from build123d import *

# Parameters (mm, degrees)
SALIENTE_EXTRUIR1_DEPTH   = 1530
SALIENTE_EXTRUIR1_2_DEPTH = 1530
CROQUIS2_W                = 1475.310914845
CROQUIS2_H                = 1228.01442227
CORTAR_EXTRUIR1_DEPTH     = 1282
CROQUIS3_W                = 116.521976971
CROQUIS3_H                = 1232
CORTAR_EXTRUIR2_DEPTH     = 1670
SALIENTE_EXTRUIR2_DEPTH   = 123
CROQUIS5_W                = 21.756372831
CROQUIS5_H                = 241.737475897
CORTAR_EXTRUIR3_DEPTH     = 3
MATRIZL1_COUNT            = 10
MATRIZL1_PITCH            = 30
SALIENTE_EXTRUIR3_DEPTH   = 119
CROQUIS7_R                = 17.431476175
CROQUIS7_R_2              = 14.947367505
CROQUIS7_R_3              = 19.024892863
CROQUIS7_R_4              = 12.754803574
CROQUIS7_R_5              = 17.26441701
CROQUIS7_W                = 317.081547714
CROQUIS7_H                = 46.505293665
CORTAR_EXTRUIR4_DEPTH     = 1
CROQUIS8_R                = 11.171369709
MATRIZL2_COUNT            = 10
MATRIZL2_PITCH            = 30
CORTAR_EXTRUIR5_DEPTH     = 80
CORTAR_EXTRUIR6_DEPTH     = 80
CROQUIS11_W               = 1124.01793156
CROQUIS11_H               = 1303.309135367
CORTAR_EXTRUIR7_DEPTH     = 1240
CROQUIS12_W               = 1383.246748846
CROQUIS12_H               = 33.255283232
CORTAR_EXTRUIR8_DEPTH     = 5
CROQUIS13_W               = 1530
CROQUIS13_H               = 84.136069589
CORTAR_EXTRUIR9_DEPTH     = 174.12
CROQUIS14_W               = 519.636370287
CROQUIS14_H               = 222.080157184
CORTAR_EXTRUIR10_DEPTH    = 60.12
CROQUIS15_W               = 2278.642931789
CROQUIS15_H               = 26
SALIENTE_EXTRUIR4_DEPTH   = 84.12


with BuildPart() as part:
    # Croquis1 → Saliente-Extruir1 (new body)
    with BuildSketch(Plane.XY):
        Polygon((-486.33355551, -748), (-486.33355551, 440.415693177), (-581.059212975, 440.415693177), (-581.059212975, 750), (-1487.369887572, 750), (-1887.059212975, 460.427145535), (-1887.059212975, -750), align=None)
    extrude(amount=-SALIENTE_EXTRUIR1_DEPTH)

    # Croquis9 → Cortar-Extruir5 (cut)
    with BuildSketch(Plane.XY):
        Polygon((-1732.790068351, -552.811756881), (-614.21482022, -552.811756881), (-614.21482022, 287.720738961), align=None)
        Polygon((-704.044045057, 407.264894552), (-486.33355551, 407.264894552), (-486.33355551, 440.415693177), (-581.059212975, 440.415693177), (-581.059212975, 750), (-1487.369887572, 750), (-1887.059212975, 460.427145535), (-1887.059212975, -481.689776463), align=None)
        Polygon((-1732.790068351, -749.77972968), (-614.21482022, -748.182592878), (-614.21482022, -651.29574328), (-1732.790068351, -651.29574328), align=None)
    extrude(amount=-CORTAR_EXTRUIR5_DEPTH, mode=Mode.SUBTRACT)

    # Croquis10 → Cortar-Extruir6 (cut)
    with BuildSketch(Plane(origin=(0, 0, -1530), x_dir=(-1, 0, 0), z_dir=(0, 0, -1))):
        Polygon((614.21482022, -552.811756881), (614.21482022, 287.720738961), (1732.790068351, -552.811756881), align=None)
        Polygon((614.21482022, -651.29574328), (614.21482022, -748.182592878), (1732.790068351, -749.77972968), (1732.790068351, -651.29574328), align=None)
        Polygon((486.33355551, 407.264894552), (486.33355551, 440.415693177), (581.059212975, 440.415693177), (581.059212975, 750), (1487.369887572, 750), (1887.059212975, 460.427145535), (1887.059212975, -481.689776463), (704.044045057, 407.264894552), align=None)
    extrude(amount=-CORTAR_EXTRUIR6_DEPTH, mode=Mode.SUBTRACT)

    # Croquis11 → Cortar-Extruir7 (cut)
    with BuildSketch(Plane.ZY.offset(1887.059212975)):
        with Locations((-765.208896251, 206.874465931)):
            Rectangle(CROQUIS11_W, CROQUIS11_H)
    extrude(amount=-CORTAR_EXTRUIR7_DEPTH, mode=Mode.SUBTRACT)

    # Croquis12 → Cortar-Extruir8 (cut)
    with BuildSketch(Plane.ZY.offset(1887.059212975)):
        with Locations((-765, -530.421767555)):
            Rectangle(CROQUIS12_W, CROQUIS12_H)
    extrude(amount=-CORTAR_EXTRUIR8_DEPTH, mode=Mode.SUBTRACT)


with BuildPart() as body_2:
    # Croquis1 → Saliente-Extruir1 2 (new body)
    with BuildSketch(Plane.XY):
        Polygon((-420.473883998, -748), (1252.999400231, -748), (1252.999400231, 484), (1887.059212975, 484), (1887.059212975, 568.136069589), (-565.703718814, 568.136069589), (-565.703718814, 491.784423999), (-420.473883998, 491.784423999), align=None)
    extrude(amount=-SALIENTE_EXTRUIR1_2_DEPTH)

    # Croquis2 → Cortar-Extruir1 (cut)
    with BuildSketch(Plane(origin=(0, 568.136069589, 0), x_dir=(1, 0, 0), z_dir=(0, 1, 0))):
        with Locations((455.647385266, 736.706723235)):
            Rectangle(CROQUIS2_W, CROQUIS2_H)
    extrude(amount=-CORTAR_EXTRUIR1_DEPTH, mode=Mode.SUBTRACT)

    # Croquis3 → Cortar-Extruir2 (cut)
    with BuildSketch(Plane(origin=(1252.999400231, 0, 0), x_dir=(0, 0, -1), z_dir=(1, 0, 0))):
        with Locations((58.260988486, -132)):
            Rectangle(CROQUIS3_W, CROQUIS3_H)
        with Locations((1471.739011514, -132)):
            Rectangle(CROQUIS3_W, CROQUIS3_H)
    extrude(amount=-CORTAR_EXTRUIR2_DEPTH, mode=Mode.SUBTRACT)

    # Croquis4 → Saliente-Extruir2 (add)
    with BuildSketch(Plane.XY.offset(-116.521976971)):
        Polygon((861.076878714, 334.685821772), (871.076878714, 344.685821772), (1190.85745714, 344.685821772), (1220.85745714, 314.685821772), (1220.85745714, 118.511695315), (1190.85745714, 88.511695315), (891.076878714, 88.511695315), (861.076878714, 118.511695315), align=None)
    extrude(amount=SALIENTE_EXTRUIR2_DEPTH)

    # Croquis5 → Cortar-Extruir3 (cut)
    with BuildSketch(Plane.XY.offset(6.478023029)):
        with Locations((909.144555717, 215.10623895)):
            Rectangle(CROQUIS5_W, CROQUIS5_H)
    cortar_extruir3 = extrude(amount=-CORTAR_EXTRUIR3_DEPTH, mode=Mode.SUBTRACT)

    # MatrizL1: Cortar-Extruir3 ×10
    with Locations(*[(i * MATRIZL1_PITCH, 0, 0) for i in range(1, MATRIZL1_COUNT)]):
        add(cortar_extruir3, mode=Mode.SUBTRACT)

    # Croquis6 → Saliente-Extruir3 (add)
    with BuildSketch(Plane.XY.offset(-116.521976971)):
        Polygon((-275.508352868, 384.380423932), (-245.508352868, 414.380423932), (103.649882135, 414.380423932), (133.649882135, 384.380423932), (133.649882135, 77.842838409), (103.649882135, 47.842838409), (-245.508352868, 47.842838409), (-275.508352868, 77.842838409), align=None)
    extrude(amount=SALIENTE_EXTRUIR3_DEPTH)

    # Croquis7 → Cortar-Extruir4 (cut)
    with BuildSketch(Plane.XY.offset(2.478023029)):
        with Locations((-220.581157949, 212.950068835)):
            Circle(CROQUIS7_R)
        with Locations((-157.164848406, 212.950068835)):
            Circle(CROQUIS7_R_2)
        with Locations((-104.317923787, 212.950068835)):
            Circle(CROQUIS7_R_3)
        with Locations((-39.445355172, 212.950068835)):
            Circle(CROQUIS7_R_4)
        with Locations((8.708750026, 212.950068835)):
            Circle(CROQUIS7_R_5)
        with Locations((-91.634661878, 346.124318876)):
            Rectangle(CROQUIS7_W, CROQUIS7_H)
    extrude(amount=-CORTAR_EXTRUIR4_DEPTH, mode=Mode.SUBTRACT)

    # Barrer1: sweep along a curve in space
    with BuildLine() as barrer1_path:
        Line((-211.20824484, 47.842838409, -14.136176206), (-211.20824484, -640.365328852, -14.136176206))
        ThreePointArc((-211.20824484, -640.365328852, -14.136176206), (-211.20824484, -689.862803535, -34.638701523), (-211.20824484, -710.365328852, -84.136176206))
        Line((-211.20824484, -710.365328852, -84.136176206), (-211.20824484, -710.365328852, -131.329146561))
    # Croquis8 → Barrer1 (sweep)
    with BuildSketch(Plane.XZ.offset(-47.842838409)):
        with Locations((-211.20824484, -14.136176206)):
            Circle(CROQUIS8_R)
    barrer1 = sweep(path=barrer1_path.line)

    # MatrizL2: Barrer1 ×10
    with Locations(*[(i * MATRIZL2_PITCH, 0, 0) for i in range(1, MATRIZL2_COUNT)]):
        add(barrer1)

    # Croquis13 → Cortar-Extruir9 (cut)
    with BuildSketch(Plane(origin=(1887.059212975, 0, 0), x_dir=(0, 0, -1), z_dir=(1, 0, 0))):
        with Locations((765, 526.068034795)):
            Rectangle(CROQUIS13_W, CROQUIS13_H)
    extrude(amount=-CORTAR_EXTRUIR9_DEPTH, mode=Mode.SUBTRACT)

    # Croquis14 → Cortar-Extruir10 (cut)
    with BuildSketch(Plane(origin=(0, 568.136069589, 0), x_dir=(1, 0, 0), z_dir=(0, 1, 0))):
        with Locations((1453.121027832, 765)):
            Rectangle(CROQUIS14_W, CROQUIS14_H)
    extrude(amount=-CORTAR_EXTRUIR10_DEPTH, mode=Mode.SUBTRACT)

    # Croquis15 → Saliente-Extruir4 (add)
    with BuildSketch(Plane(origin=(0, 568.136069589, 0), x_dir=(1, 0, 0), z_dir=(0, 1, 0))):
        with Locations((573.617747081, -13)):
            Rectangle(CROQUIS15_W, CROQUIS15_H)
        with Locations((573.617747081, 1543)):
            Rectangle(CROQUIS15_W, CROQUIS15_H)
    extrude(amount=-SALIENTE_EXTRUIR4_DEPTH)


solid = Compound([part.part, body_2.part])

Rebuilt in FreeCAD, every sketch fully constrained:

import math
import FreeCAD as App
import Part
import Sketcher

V = App.Vector

doc = App.newDocument("Part")
body = doc.addObject("PartDesign::Body", "Body")

# Sketch on XY plane
sketch1 = doc.addObject("Sketcher::SketchObject", "Sketch")
body.addObject(sketch1)
sketch1.AttachmentSupport = (doc.XY_Plane, [""])
sketch1.MapMode = "FlatFace"
sketch1.addGeometry([
    Part.LineSegment(V(-486.333556, -748, 0), V(-486.333556, 440.415693, 0)),  # 0
    Part.LineSegment(V(-486.333556, 440.415693, 0), V(-581.059213, 440.415693, 0)),  # 1
    Part.LineSegment(V(-581.059213, 440.415693, 0), V(-581.059213, 750, 0)),  # 2
    Part.LineSegment(V(-581.059213, 750, 0), V(-1487.369888, 750, 0)),  # 3
    Part.LineSegment(V(-1487.369888, 750, 0), V(-1887.059213, 460.427146, 0)),  # 4
    Part.LineSegment(V(-1887.059213, 460.427146, 0), V(-1887.059213, -750, 0)),  # 5
    Part.LineSegment(V(-1887.059213, -750, 0), V(-486.333556, -748, 0)),  # 6
], False)
sketch1.addConstraint([
    Sketcher.Constraint("Coincident", 0, 2, 1, 1),
    Sketcher.Constraint("Coincident", 1, 2, 2, 1),
    Sketcher.Constraint("Coincident", 2, 2, 3, 1),
    Sketcher.Constraint("Coincident", 3, 2, 4, 1),
    Sketcher.Constraint("Coincident", 4, 2, 5, 1),
    Sketcher.Constraint("Coincident", 5, 2, 6, 1),
    Sketcher.Constraint("Coincident", 6, 2, 0, 1),
    Sketcher.Constraint("Vertical", 0),
    Sketcher.Constraint("Horizontal", 1),
    Sketcher.Constraint("Vertical", 2),
    Sketcher.Constraint("Horizontal", 3),
    Sketcher.Constraint("Vertical", 5),
    Sketcher.Constraint("DistanceY", -1, 1, 2, 2, 750.0),
    Sketcher.Constraint("DistanceY", 5, 2, -1, 1, 750.0),
    Sketcher.Constraint("DistanceY", 6, 2, -1, 1, 748.0),
    Sketcher.Constraint("DistanceX", 4, 2, 1, 2, 1306.0),
    Sketcher.Constraint("DistanceX", 1, 2, 1, 1, 94.725657),
    Sketcher.Constraint("DistanceX", 3, 2, 3, 1, 906.310675),
    Sketcher.Constraint("DistanceY", 0, 1, 0, 2, 1188.415693),
    Sketcher.Constraint("DistanceY", 5, 2, 5, 1, 1210.427146),
    Sketcher.Constraint("DistanceX", 0, 2, -1, 1, 486.333556),
])
pad1 = doc.addObject("PartDesign::Pad", "Pad")
body.addObject(pad1)
pad1.Profile = sketch1
pad1.Length = 1530
pad1.Reversed = True

# Sketch on XY plane
sketch2 = doc.addObject("Sketcher::SketchObject", "Sketch001")
body.addObject(sketch2)
sketch2.AttachmentSupport = (doc.XY_Plane, [""])
sketch2.MapMode = "FlatFace"
sketch2.addGeometry([
    Part.LineSegment(V(-1732.790068, -552.811757, 0), V(-614.21482, -552.811757, 0)),  # 0
    Part.LineSegment(V(-614.21482, -552.811757, 0), V(-614.21482, 287.720739, 0)),  # 1
    Part.LineSegment(V(-614.21482, 287.720739, 0), V(-1732.790068, -552.811757, 0)),  # 2
    Part.LineSegment(V(-704.044045, 407.264895, 0), V(-486.333556, 407.264895, 0)),  # 3
    Part.LineSegment(V(-486.333556, 407.264895, 0), V(-486.333556, 440.415693, 0)),  # 4
    Part.LineSegment(V(-486.333556, 440.415693, 0), V(-581.059213, 440.415693, 0)),  # 5
    Part.LineSegment(V(-581.059213, 440.415693, 0), V(-581.059213, 750, 0)),  # 6
    Part.LineSegment(V(-581.059213, 750, 0), V(-1487.369888, 750, 0)),  # 7
    Part.LineSegment(V(-1487.369888, 750, 0), V(-1887.059213, 460.427146, 0)),  # 8
    Part.LineSegment(V(-1887.059213, 460.427146, 0), V(-1887.059213, -481.689776, 0)),  # 9
    Part.LineSegment(V(-1887.059213, -481.689776, 0), V(-704.044045, 407.264895, 0)),  # 10
    Part.LineSegment(V(-1732.790068, -749.77973, 0), V(-614.21482, -748.182593, 0)),  # 11
    Part.LineSegment(V(-614.21482, -748.182593, 0), V(-614.21482, -651.295743, 0)),  # 12
    Part.LineSegment(V(-614.21482, -651.295743, 0), V(-1732.790068, -651.295743, 0)),  # 13
    Part.LineSegment(V(-1732.790068, -651.295743, 0), V(-1732.790068, -749.77973, 0)),  # 14
], False)
sketch2.addConstraint([
    Sketcher.Constraint("Coincident", 0, 2, 1, 1),
    Sketcher.Constraint("Coincident", 1, 2, 2, 1),
    Sketcher.Constraint("Coincident", 2, 2, 0, 1),
    Sketcher.Constraint("Coincident", 3, 2, 4, 1),
    Sketcher.Constraint("Coincident", 4, 2, 5, 1),
    Sketcher.Constraint("Coincident", 5, 2, 6, 1),
    Sketcher.Constraint("Coincident", 6, 2, 7, 1),
    Sketcher.Constraint("Coincident", 7, 2, 8, 1),
    Sketcher.Constraint("Coincident", 8, 2, 9, 1),
    Sketcher.Constraint("Coincident", 9, 2, 10, 1),
    Sketcher.Constraint("Coincident", 10, 2, 3, 1),
    Sketcher.Constraint("Coincident", 11, 2, 12, 1),
    Sketcher.Constraint("Coincident", 12, 2, 13, 1),
    Sketcher.Constraint("Coincident", 13, 2, 14, 1),
    Sketcher.Constraint("Coincident", 14, 2, 11, 1),
    Sketcher.Constraint("Horizontal", 0),
    Sketcher.Constraint("Vertical", 1),
    Sketcher.Constraint("Horizontal", 3),
    Sketcher.Constraint("Vertical", 4),
    Sketcher.Constraint("Horizontal", 5),
    Sketcher.Constraint("Vertical", 6),
    Sketcher.Constraint("Horizontal", 7),
    Sketcher.Constraint("Vertical", 9),
    Sketcher.Constraint("Vertical", 12),
    Sketcher.Constraint("Horizontal", 13),
    Sketcher.Constraint("Vertical", 14),
    Sketcher.Constraint("Parallel", 2, 10),
    Sketcher.Constraint("Vertical", 1, 2, 11, 2),
    Sketcher.Constraint("Vertical", 2, 2, 13, 2),
    Sketcher.Constraint("DistanceY", -1, 1, 6, 2, 750.0),
    Sketcher.Constraint("DistanceX", 8, 2, 5, 2, 1306.0),
    Sketcher.Constraint("DistanceY", 4, 1, 4, 2, 33.150799),
    Sketcher.Constraint("DistanceX", 0, 1, 0, 2, 1118.575248),
    Sketcher.Constraint("DistanceX", 3, 1, 3, 2, 217.71049),
    Sketcher.Constraint("DistanceY", 9, 2, 9, 1, 942.116922),
    Sketcher.Constraint("DistanceY", 12, 1, 12, 2, 96.88685),
    Sketcher.Constraint("DistanceX", 5, 2, 5, 1, 94.725657),
    Sketcher.Constraint("DistanceX", 7, 2, 7, 1, 906.310675),
    Sketcher.Constraint("DistanceY", 1, 1, 1, 2, 840.532496),
    Sketcher.Constraint("DistanceY", 6, 1, 6, 2, 309.584307),
    Sketcher.Constraint("DistanceY", 14, 2, 14, 1, 98.483986),
    Sketcher.Constraint("DistanceX", 0, 2, -1, 1, 614.21482),
    Sketcher.Constraint("DistanceY", -1, 1, 1, 2, 287.720739),
    Sketcher.Constraint("DistanceY", 14, 2, -1, 1, 749.77973),
    Sketcher.Constraint("DistanceX", 3, 2, -1, 1, 486.333556),
])
pocket1 = doc.addObject("PartDesign::Pocket", "Pocket")
body.addObject(pocket1)
pocket1.Profile = sketch2
pocket1.Length = 80

# Sketch on XY plane
sketch3 = doc.addObject("Sketcher::SketchObject", "Sketch002")
body.addObject(sketch3)
sketch3.AttachmentSupport = (doc.XY_Plane, [""])
sketch3.MapMode = "FlatFace"
sketch3.AttachmentOffset = App.Placement(V(0, 0, -1530), App.Rotation())
sketch3.addGeometry([
    Part.LineSegment(V(-614.21482, 287.720739, 0), V(-614.21482, -552.811757, 0)),  # 0
    Part.LineSegment(V(-614.21482, -552.811757, 0), V(-1732.790068, -552.811757, 0)),  # 1
    Part.LineSegment(V(-1732.790068, -552.811757, 0), V(-614.21482, 287.720739, 0)),  # 2
    Part.LineSegment(V(-614.21482, -651.295743, 0), V(-614.21482, -748.182593, 0)),  # 3
    Part.LineSegment(V(-614.21482, -748.182593, 0), V(-1732.790068, -749.77973, 0)),  # 4
    Part.LineSegment(V(-1732.790068, -749.77973, 0), V(-1732.790068, -651.295743, 0)),  # 5
    Part.LineSegment(V(-1732.790068, -651.295743, 0), V(-614.21482, -651.295743, 0)),  # 6
    Part.LineSegment(V(-486.333556, 440.415693, 0), V(-486.333556, 407.264895, 0)),  # 7
    Part.LineSegment(V(-486.333556, 407.264895, 0), V(-704.044045, 407.264895, 0)),  # 8
    Part.LineSegment(V(-704.044045, 407.264895, 0), V(-1887.059213, -481.689776, 0)),  # 9
    Part.LineSegment(V(-1887.059213, -481.689776, 0), V(-1887.059213, 460.427146, 0)),  # 10
    Part.LineSegment(V(-1887.059213, 460.427146, 0), V(-1487.369888, 750, 0)),  # 11
    Part.LineSegment(V(-1487.369888, 750, 0), V(-581.059213, 750, 0)),  # 12
    Part.LineSegment(V(-581.059213, 750, 0), V(-581.059213, 440.415693, 0)),  # 13
    Part.LineSegment(V(-581.059213, 440.415693, 0), V(-486.333556, 440.415693, 0)),  # 14
], False)
sketch3.addConstraint([
    Sketcher.Constraint("Coincident", 0, 2, 1, 1),
    Sketcher.Constraint("Coincident", 1, 2, 2, 1),
    Sketcher.Constraint("Coincident", 2, 2, 0, 1),
    Sketcher.Constraint("Coincident", 3, 2, 4, 1),
    Sketcher.Constraint("Coincident", 4, 2, 5, 1),
    Sketcher.Constraint("Coincident", 5, 2, 6, 1),
    Sketcher.Constraint("Coincident", 6, 2, 3, 1),
    Sketcher.Constraint("Coincident", 7, 2, 8, 1),
    Sketcher.Constraint("Coincident", 8, 2, 9, 1),
    Sketcher.Constraint("Coincident", 9, 2, 10, 1),
    Sketcher.Constraint("Coincident", 10, 2, 11, 1),
    Sketcher.Constraint("Coincident", 11, 2, 12, 1),
    Sketcher.Constraint("Coincident", 12, 2, 13, 1),
    Sketcher.Constraint("Coincident", 13, 2, 14, 1),
    Sketcher.Constraint("Coincident", 14, 2, 7, 1),
    Sketcher.Constraint("Vertical", 0),
    Sketcher.Constraint("Horizontal", 1),
    Sketcher.Constraint("Vertical", 3),
    Sketcher.Constraint("Vertical", 5),
    Sketcher.Constraint("Horizontal", 6),
    Sketcher.Constraint("Vertical", 7),
    Sketcher.Constraint("Horizontal", 8),
    Sketcher.Constraint("Vertical", 10),
    Sketcher.Constraint("Horizontal", 12),
    Sketcher.Constraint("Vertical", 13),
    Sketcher.Constraint("Horizontal", 14),
    Sketcher.Constraint("Parallel", 2, 9),
    Sketcher.Constraint("Vertical", 2, 2, 3, 2),
    Sketcher.Constraint("Vertical", 1, 2, 4, 2),
    Sketcher.Constraint("DistanceY", -1, 1, 11, 2, 750.0),
    Sketcher.Constraint("DistanceY", 7, 2, 7, 1, 33.150799),
    Sketcher.Constraint("DistanceX", 1, 2, 1, 1, 1118.575248),
    Sketcher.Constraint("DistanceX", 8, 2, 8, 1, 217.71049),
    Sketcher.Constraint("DistanceY", 3, 2, 3, 1, 96.88685),
    Sketcher.Constraint("DistanceY", 10, 1, 10, 2, 942.116922),
    Sketcher.Constraint("DistanceX", 12, 1, 12, 2, 906.310675),
    Sketcher.Constraint("DistanceX", 14, 1, 14, 2, 94.725657),
    Sketcher.Constraint("DistanceY", 0, 2, 0, 1, 840.532496),
    Sketcher.Constraint("DistanceY", 5, 1, 5, 2, 98.483986),
    Sketcher.Constraint("DistanceY", 13, 2, 13, 1, 309.584307),
    Sketcher.Constraint("DistanceX", 0, 2, -1, 1, 614.21482),
    Sketcher.Constraint("DistanceY", -1, 1, 2, 2, 287.720739),
    Sketcher.Constraint("DistanceY", 4, 2, -1, 1, 749.77973),
    Sketcher.Constraint("DistanceY", 1, 2, 9, 2, 71.12198),
    Sketcher.Constraint("DistanceX", 7, 2, -1, 1, 486.333556),
])
pocket2 = doc.addObject("PartDesign::Pocket", "Pocket001")
body.addObject(pocket2)
pocket2.Profile = sketch3
pocket2.Length = 80
pocket2.Reversed = True

# Sketch on YZ plane
sketch4 = doc.addObject("Sketcher::SketchObject", "Sketch003")
body.addObject(sketch4)
sketch4.AttachmentSupport = (doc.YZ_Plane, [""])
sketch4.MapMode = "FlatFace"
sketch4.AttachmentOffset = App.Placement(V(0, 0, -1887.059213), App.Rotation())
sketch4.addGeometry([
    Part.LineSegment(V(858.529034, -1327.217862, 0), V(-444.780102, -1327.217862, 0)),
    Part.LineSegment(V(-444.780102, -1327.217862, 0), V(-444.780102, -203.19993, 0)),
    Part.LineSegment(V(-444.780102, -203.19993, 0), V(858.529034, -203.19993, 0)),
    Part.LineSegment(V(858.529034, -203.19993, 0), V(858.529034, -1327.217862, 0)),
], False)
sketch4.addConstraint([
    Sketcher.Constraint("Coincident", 0, 2, 1, 1),
    Sketcher.Constraint("Coincident", 1, 2, 2, 1),
    Sketcher.Constraint("Coincident", 2, 2, 3, 1),
    Sketcher.Constraint("Coincident", 3, 2, 0, 1),
    Sketcher.Constraint("Horizontal", 0),
    Sketcher.Constraint("Vertical", 1),
    Sketcher.Constraint("Horizontal", 2),
    Sketcher.Constraint("Vertical", 3),
    Sketcher.Constraint("DistanceY", 1, 1, 1, 2, 1124.017932),
    Sketcher.Constraint("DistanceX", 0, 2, -1, 1, 444.780102),
    Sketcher.Constraint("DistanceX", 0, 2, 0, 1, 1303.309135),
    Sketcher.Constraint("DistanceY", 1, 2, -1, 1, 203.19993),
])
pocket3 = doc.addObject("PartDesign::Pocket", "Pocket002")
body.addObject(pocket3)
pocket3.Profile = sketch4
pocket3.Length = 1240
pocket3.Reversed = True

# Sketch on YZ plane
sketch5 = doc.addObject("Sketcher::SketchObject", "Sketch004")
body.addObject(sketch5)
sketch5.AttachmentSupport = (doc.YZ_Plane, [""])
sketch5.MapMode = "FlatFace"
sketch5.AttachmentOffset = App.Placement(V(0, 0, -1887.059213), App.Rotation())
sketch5.addGeometry([
    Part.LineSegment(V(-513.794126, -1456.623374, 0), V(-547.049409, -1456.623374, 0)),
    Part.LineSegment(V(-547.049409, -1456.623374, 0), V(-547.049409, -73.376626, 0)),
    Part.LineSegment(V(-547.049409, -73.376626, 0), V(-513.794126, -73.376626, 0)),
    Part.LineSegment(V(-513.794126, -73.376626, 0), V(-513.794126, -1456.623374, 0)),
], False)
sketch5.addConstraint([
    Sketcher.Constraint("Coincident", 0, 2, 1, 1),
    Sketcher.Constraint("Coincident", 1, 2, 2, 1),
    Sketcher.Constraint("Coincident", 2, 2, 3, 1),
    Sketcher.Constraint("Coincident", 3, 2, 0, 1),
    Sketcher.Constraint("Horizontal", 0),
    Sketcher.Constraint("Vertical", 1),
    Sketcher.Constraint("Horizontal", 2),
    Sketcher.Constraint("Vertical", 3),
    Sketcher.Constraint("DistanceY", 1, 1, 1, 2, 1383.246749),
    Sketcher.Constraint("DistanceX", 0, 2, 0, 1, 33.255283),
    Sketcher.Constraint("DistanceX", 0, 2, -1, 1, 547.049409),
    Sketcher.Constraint("DistanceY", 0, 2, -1, 1, 1456.623374),
])
pocket4 = doc.addObject("PartDesign::Pocket", "Pocket003")
body.addObject(pocket4)
pocket4.Profile = sketch5
pocket4.Length = 5
pocket4.Reversed = True
body2 = doc.addObject("PartDesign::Body", "Body001")

# Sketch on XY plane
sketch6 = doc.addObject("Sketcher::SketchObject", "Sketch005")
body2.addObject(sketch6)
sketch6.AttachmentSupport = (doc.getObject("XY_Plane001"), [""])
sketch6.MapMode = "FlatFace"
sketch6.addGeometry([
    Part.LineSegment(V(-420.473884, -748, 0), V(1252.9994, -748, 0)),  # 0
    Part.LineSegment(V(1252.9994, -748, 0), V(1252.9994, 484, 0)),  # 1
    Part.LineSegment(V(1252.9994, 484, 0), V(1887.059213, 484, 0)),  # 2
    Part.LineSegment(V(1887.059213, 484, 0), V(1887.059213, 568.13607, 0)),  # 3
    Part.LineSegment(V(1887.059213, 568.13607, 0), V(-565.703719, 568.13607, 0)),  # 4
    Part.LineSegment(V(-565.703719, 568.13607, 0), V(-565.703719, 491.784424, 0)),  # 5
    Part.LineSegment(V(-565.703719, 491.784424, 0), V(-420.473884, 491.784424, 0)),  # 6
    Part.LineSegment(V(-420.473884, 491.784424, 0), V(-420.473884, -748, 0)),  # 7
], False)
sketch6.addConstraint([
    Sketcher.Constraint("Coincident", 0, 2, 1, 1),
    Sketcher.Constraint("Coincident", 1, 2, 2, 1),
    Sketcher.Constraint("Coincident", 2, 2, 3, 1),
    Sketcher.Constraint("Coincident", 3, 2, 4, 1),
    Sketcher.Constraint("Coincident", 4, 2, 5, 1),
    Sketcher.Constraint("Coincident", 5, 2, 6, 1),
    Sketcher.Constraint("Coincident", 6, 2, 7, 1),
    Sketcher.Constraint("Coincident", 7, 2, 0, 1),
    Sketcher.Constraint("Horizontal", 0),
    Sketcher.Constraint("Vertical", 1),
    Sketcher.Constraint("Horizontal", 2),
    Sketcher.Constraint("Vertical", 3),
    Sketcher.Constraint("Horizontal", 4),
    Sketcher.Constraint("Vertical", 5),
    Sketcher.Constraint("Horizontal", 6),
    Sketcher.Constraint("Vertical", 7),
    Sketcher.Constraint("DistanceY", 1, 1, 1, 2, 1232.0),
    Sketcher.Constraint("DistanceY", 0, 2, -1, 1, 748.0),
    Sketcher.Constraint("DistanceX", 4, 2, 4, 1, 2452.762932),
    Sketcher.Constraint("DistanceY", 3, 1, 3, 2, 84.13607),
    Sketcher.Constraint("DistanceX", -1, 1, 0, 2, 1252.9994),
    Sketcher.Constraint("DistanceX", 0, 1, 0, 2, 1673.473284),
    Sketcher.Constraint("DistanceX", 2, 1, 2, 2, 634.059813),
    Sketcher.Constraint("DistanceY", 5, 2, 5, 1, 76.351646),
])
pad2 = doc.addObject("PartDesign::Pad", "Pad001")
body2.addObject(pad2)
pad2.Profile = sketch6
pad2.Length = 1530
pad2.Reversed = True

# Sketch on XZ plane
sketch7 = doc.addObject("Sketcher::SketchObject", "Sketch006")
body2.addObject(sketch7)
sketch7.AttachmentSupport = (doc.getObject("XZ_Plane001"), [""])
sketch7.MapMode = "FlatFace"
sketch7.AttachmentOffset = App.Placement(V(0, 0, -568.13607), App.Rotation())
sketch7.addGeometry([
    Part.LineSegment(V(-282.008072, -1350.713934, 0), V(-282.008072, -122.699512, 0)),
    Part.LineSegment(V(-282.008072, -122.699512, 0), V(1193.302843, -122.699512, 0)),
    Part.LineSegment(V(1193.302843, -122.699512, 0), V(1193.302843, -1350.713934, 0)),
    Part.LineSegment(V(1193.302843, -1350.713934, 0), V(-282.008072, -1350.713934, 0)),
], False)
sketch7.addConstraint([
    Sketcher.Constraint("Coincident", 0, 2, 1, 1),
    Sketcher.Constraint("Coincident", 1, 2, 2, 1),
    Sketcher.Constraint("Coincident", 2, 2, 3, 1),
    Sketcher.Constraint("Coincident", 3, 2, 0, 1),
    Sketcher.Constraint("Vertical", 0),
    Sketcher.Constraint("Horizontal", 1),
    Sketcher.Constraint("Vertical", 2),
    Sketcher.Constraint("Horizontal", 3),
    Sketcher.Constraint("DistanceX", 1, 1, 1, 2, 1475.310915),
    Sketcher.Constraint("DistanceY", 0, 1, 0, 2, 1228.014422),
    Sketcher.Constraint("DistanceX", 0, 2, -1, 1, 282.008072),
    Sketcher.Constraint("DistanceY", 0, 2, -1, 1, 122.699512),
])
pocket5 = doc.addObject("PartDesign::Pocket", "Pocket004")
body2.addObject(pocket5)
pocket5.Profile = sketch7
pocket5.Length = 1282
pocket5.Reversed = True

# Sketch on YZ plane
sketch8 = doc.addObject("Sketcher::SketchObject", "Sketch007")
body2.addObject(sketch8)
sketch8.AttachmentSupport = (doc.getObject("YZ_Plane001"), [""])
sketch8.MapMode = "FlatFace"
sketch8.AttachmentOffset = App.Placement(V(0, 0, 1252.9994), App.Rotation())
sketch8.addGeometry([
    Part.LineSegment(V(484, 0, 0), V(-748, 0, 0)),  # 0
    Part.LineSegment(V(-748, 0, 0), V(-748, -116.521977, 0)),  # 1
    Part.LineSegment(V(-748, -116.521977, 0), V(484, -116.521977, 0)),  # 2
    Part.LineSegment(V(484, -116.521977, 0), V(484, 0, 0)),  # 3
    Part.LineSegment(V(484, -1413.478023, 0), V(-748, -1413.478023, 0)),  # 4
    Part.LineSegment(V(-748, -1413.478023, 0), V(-748, -1530, 0)),  # 5
    Part.LineSegment(V(-748, -1530, 0), V(484, -1530, 0)),  # 6
    Part.LineSegment(V(484, -1530, 0), V(484, -1413.478023, 0)),  # 7
], False)
sketch8.addConstraint([
    Sketcher.Constraint("Coincident", 0, 2, 1, 1),
    Sketcher.Constraint("Coincident", 1, 2, 2, 1),
    Sketcher.Constraint("Coincident", 2, 2, 3, 1),
    Sketcher.Constraint("Coincident", 3, 2, 0, 1),
    Sketcher.Constraint("Coincident", 4, 2, 5, 1),
    Sketcher.Constraint("Coincident", 5, 2, 6, 1),
    Sketcher.Constraint("Coincident", 6, 2, 7, 1),
    Sketcher.Constraint("Coincident", 7, 2, 4, 1),
    Sketcher.Constraint("Horizontal", 0),
    Sketcher.Constraint("Vertical", 1),
    Sketcher.Constraint("Horizontal", 2),
    Sketcher.Constraint("Vertical", 3),
    Sketcher.Constraint("Horizontal", 4),
    Sketcher.Constraint("Vertical", 5),
    Sketcher.Constraint("Horizontal", 6),
    Sketcher.Constraint("Vertical", 7),
    Sketcher.Constraint("PointOnObject", 0, 2, -1),
    Sketcher.Constraint("Vertical", 1, 2, 4, 2),
    Sketcher.Constraint("Vertical", 3, 2, 6, 2),
    Sketcher.Constraint("Equal", 3, 5),
    Sketcher.Constraint("DistanceX", 0, 2, 0, 1, 1232.0),
    Sketcher.Constraint("DistanceX", 0, 2, -1, 1, 748.0),
    Sketcher.Constraint("DistanceY", 5, 2, -1, 1, 1530.0),
    Sketcher.Constraint("DistanceY", 1, 2, 1, 1, 116.521977),
])
pocket6 = doc.addObject("PartDesign::Pocket", "Pocket005")
body2.addObject(pocket6)
pocket6.Profile = sketch8
pocket6.Length = 1670

# Sketch on XY plane
sketch9 = doc.addObject("Sketcher::SketchObject", "Sketch008")
body2.addObject(sketch9)
sketch9.AttachmentSupport = (doc.getObject("XY_Plane001"), [""])
sketch9.MapMode = "FlatFace"
sketch9.AttachmentOffset = App.Placement(V(0, 0, -116.521977), App.Rotation())
sketch9.addGeometry([
    Part.LineSegment(V(871.076879, 344.685822, 0), V(861.076879, 334.685822, 0)),  # 0
    Part.LineSegment(V(861.076879, 334.685822, 0), V(861.076879, 118.511695, 0)),  # 1
    Part.LineSegment(V(861.076879, 118.511695, 0), V(891.076879, 88.511695, 0)),  # 2
    Part.LineSegment(V(891.076879, 88.511695, 0), V(1190.857457, 88.511695, 0)),  # 3
    Part.LineSegment(V(1190.857457, 88.511695, 0), V(1220.857457, 118.511695, 0)),  # 4
    Part.LineSegment(V(1220.857457, 118.511695, 0), V(1220.857457, 314.685822, 0)),  # 5
    Part.LineSegment(V(1220.857457, 314.685822, 0), V(1190.857457, 344.685822, 0)),  # 6
    Part.LineSegment(V(1190.857457, 344.685822, 0), V(871.076879, 344.685822, 0)),  # 7
], False)
sketch9.addConstraint([
    Sketcher.Constraint("Coincident", 0, 2, 1, 1),
    Sketcher.Constraint("Coincident", 1, 2, 2, 1),
    Sketcher.Constraint("Coincident", 2, 2, 3, 1),
    Sketcher.Constraint("Coincident", 3, 2, 4, 1),
    Sketcher.Constraint("Coincident", 4, 2, 5, 1),
    Sketcher.Constraint("Coincident", 5, 2, 6, 1),
    Sketcher.Constraint("Coincident", 6, 2, 7, 1),
    Sketcher.Constraint("Coincident", 7, 2, 0, 1),
    Sketcher.Constraint("Vertical", 1),
    Sketcher.Constraint("Horizontal", 3),
    Sketcher.Constraint("Vertical", 5),
    Sketcher.Constraint("Horizontal", 7),
    Sketcher.Constraint("Perpendicular", 0, 2),
    Sketcher.Constraint("Perpendicular", 2, 4),
    Sketcher.Constraint("Perpendicular", 4, 6),
    Sketcher.Constraint("Horizontal", 1, 2, 4, 2),
    Sketcher.Constraint("Vertical", 3, 2, 6, 2),
    Sketcher.Constraint("Equal", 2, 4),
    Sketcher.Constraint("DistanceX", 1, 2, 2, 2, 30.0),
    Sketcher.Constraint("DistanceY", 5, 2, 0, 2, 20.0),
    Sketcher.Constraint("DistanceX", 3, 1, 3, 2, 299.780578),
    Sketcher.Constraint("DistanceY", 1, 2, 1, 1, 216.174126),
    Sketcher.Constraint("DistanceX", -1, 1, 0, 2, 861.076879),
    Sketcher.Constraint("DistanceY", -1, 1, 0, 2, 334.685822),
])
pad3 = doc.addObject("PartDesign::Pad", "Pad002")
body2.addObject(pad3)
pad3.Profile = sketch9
pad3.Length = 123

# Sketch on XY plane
sketch10 = doc.addObject("Sketcher::SketchObject", "Sketch009")
body2.addObject(sketch10)
sketch10.AttachmentSupport = (doc.getObject("XY_Plane001"), [""])
sketch10.MapMode = "FlatFace"
sketch10.AttachmentOffset = App.Placement(V(0, 0, 6.478023), App.Rotation())
sketch10.addGeometry([
    Part.LineSegment(V(898.266369, 335.974977, 0), V(898.266369, 94.237501, 0)),
    Part.LineSegment(V(898.266369, 94.237501, 0), V(920.022742, 94.237501, 0)),
    Part.LineSegment(V(920.022742, 94.237501, 0), V(920.022742, 335.974977, 0)),
    Part.LineSegment(V(920.022742, 335.974977, 0), V(898.266369, 335.974977, 0)),
], False)
sketch10.addConstraint([
    Sketcher.Constraint("Coincident", 0, 2, 1, 1),
    Sketcher.Constraint("Coincident", 1, 2, 2, 1),
    Sketcher.Constraint("Coincident", 2, 2, 3, 1),
    Sketcher.Constraint("Coincident", 3, 2, 0, 1),
    Sketcher.Constraint("Vertical", 0),
    Sketcher.Constraint("Horizontal", 1),
    Sketcher.Constraint("Vertical", 2),
    Sketcher.Constraint("Horizontal", 3),
    Sketcher.Constraint("DistanceY", -1, 1, 0, 2, 94.237501),
    Sketcher.Constraint("DistanceX", 1, 1, 1, 2, 21.756373),
    Sketcher.Constraint("DistanceY", 0, 2, 0, 1, 241.737476),
    Sketcher.Constraint("DistanceX", -1, 1, 0, 2, 898.266369),
])
pocket7 = doc.addObject("PartDesign::Pocket", "Pocket006")
body2.addObject(pocket7)
pocket7.Profile = sketch10
pocket7.Length = 3
doc.recompute()

linearpattern = doc.addObject("PartDesign::LinearPattern", "LinearPattern")
body2.addObject(linearpattern)
linearpattern.Originals = [pocket7]
linearpattern.Direction = (doc.getObject("X_Axis001"), [""])
linearpattern.Mode = "offset"
linearpattern.Offset = 30
linearpattern.Occurrences = 10
body2.Tip = linearpattern

# Sketch on XY plane
sketch11 = doc.addObject("Sketcher::SketchObject", "Sketch010")
body2.addObject(sketch11)
sketch11.AttachmentSupport = (doc.getObject("XY_Plane001"), [""])
sketch11.MapMode = "FlatFace"
sketch11.AttachmentOffset = App.Placement(V(0, 0, -116.521977), App.Rotation())
sketch11.addGeometry([
    Part.LineSegment(V(-245.508353, 414.380424, 0), V(-275.508353, 384.380424, 0)),  # 0
    Part.LineSegment(V(-275.508353, 384.380424, 0), V(-275.508353, 77.842838, 0)),  # 1
    Part.LineSegment(V(-275.508353, 77.842838, 0), V(-245.508353, 47.842838, 0)),  # 2
    Part.LineSegment(V(-245.508353, 47.842838, 0), V(103.649882, 47.842838, 0)),  # 3
    Part.LineSegment(V(103.649882, 47.842838, 0), V(133.649882, 77.842838, 0)),  # 4
    Part.LineSegment(V(133.649882, 77.842838, 0), V(133.649882, 384.380424, 0)),  # 5
    Part.LineSegment(V(133.649882, 384.380424, 0), V(103.649882, 414.380424, 0)),  # 6
    Part.LineSegment(V(103.649882, 414.380424, 0), V(-245.508353, 414.380424, 0)),  # 7
], False)
sketch11.addConstraint([
    Sketcher.Constraint("Coincident", 0, 2, 1, 1),
    Sketcher.Constraint("Coincident", 1, 2, 2, 1),
    Sketcher.Constraint("Coincident", 2, 2, 3, 1),
    Sketcher.Constraint("Coincident", 3, 2, 4, 1),
    Sketcher.Constraint("Coincident", 4, 2, 5, 1),
    Sketcher.Constraint("Coincident", 5, 2, 6, 1),
    Sketcher.Constraint("Coincident", 6, 2, 7, 1),
    Sketcher.Constraint("Coincident", 7, 2, 0, 1),
    Sketcher.Constraint("Vertical", 1),
    Sketcher.Constraint("Horizontal", 3),
    Sketcher.Constraint("Vertical", 5),
    Sketcher.Constraint("Horizontal", 7),
    Sketcher.Constraint("Perpendicular", 0, 2),
    Sketcher.Constraint("Perpendicular", 2, 4),
    Sketcher.Constraint("Perpendicular", 4, 6),
    Sketcher.Constraint("Horizontal", 1, 2, 4, 2),
    Sketcher.Constraint("Horizontal", 0, 2, 5, 2),
    Sketcher.Constraint("Vertical", 3, 2, 6, 2),
    Sketcher.Constraint("Vertical", 2, 2, 7, 2),
    Sketcher.Constraint("DistanceX", 1, 2, 2, 2, 30.0),
    Sketcher.Constraint("DistanceX", 3, 1, 3, 2, 349.158235),
    Sketcher.Constraint("DistanceY", 1, 2, 1, 1, 306.537586),
    Sketcher.Constraint("DistanceY", -1, 1, 1, 2, 77.842838),
    Sketcher.Constraint("DistanceX", 0, 2, -1, 1, 275.508353),
])
pad4 = doc.addObject("PartDesign::Pad", "Pad003")
body2.addObject(pad4)
pad4.Profile = sketch11
pad4.Length = 119

# Sketch on XY plane
sketch12 = doc.addObject("Sketcher::SketchObject", "Sketch011")
body2.addObject(sketch12)
sketch12.AttachmentSupport = (doc.getObject("XY_Plane001"), [""])
sketch12.MapMode = "FlatFace"
sketch12.AttachmentOffset = App.Placement(V(0, 0, 2.478023), App.Rotation())
sketch12.addGeometry([
    Part.Circle(V(-220.581158, 212.950069, 0), V(0, 0, 1), 17.431476),  # 0
    Part.Circle(V(-157.164848, 212.950069, 0), V(0, 0, 1), 14.947368),  # 1
    Part.Circle(V(-104.317924, 212.950069, 0), V(0, 0, 1), 19.024893),  # 2
    Part.Circle(V(-39.445355, 212.950069, 0), V(0, 0, 1), 12.754804),  # 3
    Part.Circle(V(8.70875, 212.950069, 0), V(0, 0, 1), 17.264417),  # 4
    Part.LineSegment(V(-250.175436, 369.376966, 0), V(-250.175436, 322.871672, 0)),  # 5
    Part.LineSegment(V(-250.175436, 322.871672, 0), V(66.906112, 322.871672, 0)),  # 6
    Part.LineSegment(V(66.906112, 322.871672, 0), V(66.906112, 369.376966, 0)),  # 7
    Part.LineSegment(V(66.906112, 369.376966, 0), V(-250.175436, 369.376966, 0)),  # 8
], False)
sketch12.addConstraint([
    Sketcher.Constraint("Coincident", 5, 2, 6, 1),
    Sketcher.Constraint("Coincident", 6, 2, 7, 1),
    Sketcher.Constraint("Coincident", 7, 2, 8, 1),
    Sketcher.Constraint("Coincident", 8, 2, 5, 1),
    Sketcher.Constraint("Vertical", 5),
    Sketcher.Constraint("Horizontal", 6),
    Sketcher.Constraint("Vertical", 7),
    Sketcher.Constraint("Horizontal", 8),
    Sketcher.Constraint("Horizontal", 0, 3, 1, 3),
    Sketcher.Constraint("Horizontal", 1, 3, 2, 3),
    Sketcher.Constraint("Horizontal", 2, 3, 3, 3),
    Sketcher.Constraint("Horizontal", 3, 3, 4, 3),
    Sketcher.Constraint("Diameter", 0, 34.862952),
    Sketcher.Constraint("Diameter", 1, 29.894735),
    Sketcher.Constraint("Diameter", 2, 38.049786),
    Sketcher.Constraint("Diameter", 3, 25.509607),
    Sketcher.Constraint("Diameter", 4, 34.528834),
    Sketcher.Constraint("DistanceX", 1, 3, 4, 3, 165.873598),
    Sketcher.Constraint("DistanceX", 6, 1, 6, 2, 317.081548),
    Sketcher.Constraint("DistanceY", 5, 2, 5, 1, 46.505294),
    Sketcher.Constraint("DistanceY", -1, 1, 0, 3, 212.950069),
    Sketcher.Constraint("DistanceX", 1, 3, -1, 1, 157.164848),
    Sketcher.Constraint("DistanceX", -1, 1, 6, 2, 66.906112),
    Sketcher.Constraint("DistanceX", 0, 3, 1, 3, 63.41631),
    Sketcher.Constraint("DistanceX", 2, 3, 3, 3, 64.872569),
    Sketcher.Constraint("DistanceX", 5, 2, 2, 3, 145.857512),
    Sketcher.Constraint("DistanceY", -1, 1, 5, 2, 322.871672),
])
pocket8 = doc.addObject("PartDesign::Pocket", "Pocket007")
body2.addObject(pocket8)
pocket8.Profile = sketch12
pocket8.Length = 1

# Sketch on XZ plane
sketch13 = doc.addObject("Sketcher::SketchObject", "Sketch012")
body2.addObject(sketch13)
sketch13.AttachmentSupport = (doc.getObject("XZ_Plane001"), [""])
sketch13.MapMode = "FlatFace"
sketch13.AttachmentOffset = App.Placement(V(0, 0, -47.842838), App.Rotation())
sketch13.addGeometry(Part.Circle(V(-211.208245, -14.136176, 0), V(0, 0, 1), 11.17137), False)
sketch13.addConstraint([
    Sketcher.Constraint("Diameter", 0, 22.342739),
    Sketcher.Constraint("DistanceX", 0, 3, -1, 1, 211.208245),
    Sketcher.Constraint("DistanceY", 0, 3, -1, 1, 14.136176),
])

# Sketch on YZ plane
sketch14 = doc.addObject("Sketcher::SketchObject", "Sketch013")
body2.addObject(sketch14)
sketch14.AttachmentSupport = (doc.getObject("YZ_Plane001"), [""])
sketch14.MapMode = "FlatFace"
sketch14.AttachmentOffset = App.Placement(V(0, 0, -211.208245), App.Rotation())
sketch14.addGeometry([
    Part.LineSegment(V(47.842838, -14.136176, 0), V(-640.365329, -14.136176, 0)),
    Part.ArcOfCircle(Part.Circle(V(-640.365329, -84.136176, 0), V(0, 0, 1), 70), math.radians(90), math.radians(180)),
    Part.LineSegment(V(-710.365329, -84.136176, 0), V(-710.365329, -131.329147, 0)),
], False)
sketch14.addConstraint([
    Sketcher.Constraint("Tangent", 0, 2, 1, 1),
    Sketcher.Constraint("Tangent", 1, 2, 2, 1),
    Sketcher.Constraint("Horizontal", 0),
    Sketcher.Constraint("Vertical", 2),
    Sketcher.Constraint("Radius", 1, 70.0),
    Sketcher.Constraint("DistanceY", 2, 2, 2, 1, 47.19297),
    Sketcher.Constraint("DistanceX", 0, 2, 0, 1, 688.208167),
    Sketcher.Constraint("DistanceX", 1, 3, -1, 1, 640.365329),
    Sketcher.Constraint("DistanceY", 1, 3, -1, 1, 84.136176),
])
doc.recompute()

additivepipe = doc.addObject("PartDesign::AdditivePipe", "AdditivePipe")
body2.addObject(additivepipe)
additivepipe.Profile = sketch13
additivepipe.Spine = (sketch14, ["Edge1", "Edge2", "Edge3"])
doc.recompute()

linearpattern2 = doc.addObject("PartDesign::LinearPattern", "LinearPattern001")
body2.addObject(linearpattern2)
linearpattern2.Originals = [additivepipe]
linearpattern2.Direction = (doc.getObject("X_Axis001"), [""])
linearpattern2.Mode = "offset"
linearpattern2.Offset = 30
linearpattern2.Occurrences = 10
body2.Tip = linearpattern2

# Sketch on YZ plane
sketch15 = doc.addObject("Sketcher::SketchObject", "Sketch014")
body2.addObject(sketch15)
sketch15.AttachmentSupport = (doc.getObject("YZ_Plane001"), [""])
sketch15.MapMode = "FlatFace"
sketch15.AttachmentOffset = App.Placement(V(0, 0, 1887.059213), App.Rotation())
sketch15.addGeometry([
    Part.LineSegment(V(568.13607, 0, 0), V(484, 0, 0)),
    Part.LineSegment(V(484, 0, 0), V(484, -1530, 0)),
    Part.LineSegment(V(484, -1530, 0), V(568.13607, -1530, 0)),
    Part.LineSegment(V(568.13607, -1530, 0), V(568.13607, 0, 0)),
], False)
sketch15.addConstraint([
    Sketcher.Constraint("Coincident", 0, 2, 1, 1),
    Sketcher.Constraint("Coincident", 1, 2, 2, 1),
    Sketcher.Constraint("Coincident", 2, 2, 3, 1),
    Sketcher.Constraint("Coincident", 3, 2, 0, 1),
    Sketcher.Constraint("Horizontal", 0),
    Sketcher.Constraint("Vertical", 1),
    Sketcher.Constraint("Horizontal", 2),
    Sketcher.Constraint("Vertical", 3),
    Sketcher.Constraint("PointOnObject", 0, 2, -1),
    Sketcher.Constraint("DistanceY", 1, 2, 1, 1, 1530.0),
    Sketcher.Constraint("DistanceX", -1, 1, 0, 2, 484.0),
    Sketcher.Constraint("DistanceX", 0, 2, 0, 1, 84.13607),
])
pocket9 = doc.addObject("PartDesign::Pocket", "Pocket008")
body2.addObject(pocket9)
pocket9.Profile = sketch15
pocket9.Length = 174.12

# Sketch on XZ plane
sketch16 = doc.addObject("Sketcher::SketchObject", "Sketch015")
body2.addObject(sketch16)
sketch16.AttachmentSupport = (doc.getObject("XZ_Plane001"), [""])
sketch16.MapMode = "FlatFace"
sketch16.AttachmentOffset = App.Placement(V(0, 0, -568.13607), App.Rotation())
sketch16.addGeometry([
    Part.LineSegment(V(1193.302843, -876.040079, 0), V(1193.302843, -653.959921, 0)),
    Part.LineSegment(V(1193.302843, -653.959921, 0), V(1712.939213, -653.959921, 0)),
    Part.LineSegment(V(1712.939213, -653.959921, 0), V(1712.939213, -876.040079, 0)),
    Part.LineSegment(V(1712.939213, -876.040079, 0), V(1193.302843, -876.040079, 0)),
], False)
sketch16.addConstraint([
    Sketcher.Constraint("Coincident", 0, 2, 1, 1),
    Sketcher.Constraint("Coincident", 1, 2, 2, 1),
    Sketcher.Constraint("Coincident", 2, 2, 3, 1),
    Sketcher.Constraint("Coincident", 3, 2, 0, 1),
    Sketcher.Constraint("Vertical", 0),
    Sketcher.Constraint("Horizontal", 1),
    Sketcher.Constraint("Vertical", 2),
    Sketcher.Constraint("Horizontal", 3),
    Sketcher.Constraint("DistanceX", 1, 1, 1, 2, 519.63637),
    Sketcher.Constraint("DistanceY", 0, 1, 0, 2, 222.080157),
    Sketcher.Constraint("DistanceY", 0, 2, -1, 1, 653.959921),
    Sketcher.Constraint("DistanceX", -1, 1, 0, 2, 1193.302843),
])
pocket10 = doc.addObject("PartDesign::Pocket", "Pocket009")
body2.addObject(pocket10)
pocket10.Profile = sketch16
pocket10.Length = 60.12
pocket10.Reversed = True

# Sketch on XZ plane
sketch17 = doc.addObject("Sketcher::SketchObject", "Sketch016")
body2.addObject(sketch17)
sketch17.AttachmentSupport = (doc.getObject("XZ_Plane001"), [""])
sketch17.MapMode = "FlatFace"
sketch17.AttachmentOffset = App.Placement(V(0, 0, -568.13607), App.Rotation())
sketch17.addGeometry([
    Part.LineSegment(V(-565.703719, 0, 0), V(-565.703719, 26, 0)),  # 0
    Part.LineSegment(V(-565.703719, 26, 0), V(1712.939213, 26, 0)),  # 1
    Part.LineSegment(V(1712.939213, 26, 0), V(1712.939213, 0, 0)),  # 2
    Part.LineSegment(V(1712.939213, 0, 0), V(-565.703719, 0, 0)),  # 3
    Part.LineSegment(V(-565.703719, -1556, 0), V(-565.703719, -1530, 0)),  # 4
    Part.LineSegment(V(-565.703719, -1530, 0), V(1712.939213, -1530, 0)),  # 5
    Part.LineSegment(V(1712.939213, -1530, 0), V(1712.939213, -1556, 0)),  # 6
    Part.LineSegment(V(1712.939213, -1556, 0), V(-565.703719, -1556, 0)),  # 7
], False)
sketch17.addConstraint([
    Sketcher.Constraint("Coincident", 0, 2, 1, 1),
    Sketcher.Constraint("Coincident", 1, 2, 2, 1),
    Sketcher.Constraint("Coincident", 2, 2, 3, 1),
    Sketcher.Constraint("Coincident", 3, 2, 0, 1),
    Sketcher.Constraint("Coincident", 4, 2, 5, 1),
    Sketcher.Constraint("Coincident", 5, 2, 6, 1),
    Sketcher.Constraint("Coincident", 6, 2, 7, 1),
    Sketcher.Constraint("Coincident", 7, 2, 4, 1),
    Sketcher.Constraint("Vertical", 0),
    Sketcher.Constraint("Horizontal", 1),
    Sketcher.Constraint("Vertical", 2),
    Sketcher.Constraint("Horizontal", 3),
    Sketcher.Constraint("Vertical", 4),
    Sketcher.Constraint("Horizontal", 5),
    Sketcher.Constraint("Vertical", 6),
    Sketcher.Constraint("Horizontal", 7),
    Sketcher.Constraint("PointOnObject", 2, 2, -1),
    Sketcher.Constraint("Vertical", 3, 2, 4, 2),
    Sketcher.Constraint("Vertical", 2, 2, 5, 2),
    Sketcher.Constraint("Equal", 2, 4),
    Sketcher.Constraint("DistanceY", 0, 1, 0, 2, 26.0),
    Sketcher.Constraint("DistanceY", 4, 2, -1, 1, 1530.0),
    Sketcher.Constraint("DistanceX", 1, 1, 1, 2, 2278.642932),
    Sketcher.Constraint("DistanceX", 0, 2, -1, 1, 565.703719),
])
pad5 = doc.addObject("PartDesign::Pad", "Pad004")
body2.addObject(pad5)
pad5.Profile = sketch17
pad5.Length = 84.12

doc.recompute()
